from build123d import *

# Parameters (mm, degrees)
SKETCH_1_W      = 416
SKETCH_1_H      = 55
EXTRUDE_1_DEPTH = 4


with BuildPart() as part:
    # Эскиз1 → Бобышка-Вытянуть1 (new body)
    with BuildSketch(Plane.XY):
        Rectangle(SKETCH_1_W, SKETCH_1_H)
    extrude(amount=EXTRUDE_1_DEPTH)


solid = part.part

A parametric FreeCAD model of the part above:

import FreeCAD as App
import Part
import Sketcher

V = App.Vector
Q = App.Units.Quantity


def add_polygon(sketch, points):
    """Adds a closed chain of lines whose ends are joined by coincident constraints."""
    first, n = sketch.GeometryCount, len(points)
    for a, b in zip(points, points[1:] + points[:1]):
        sketch.addGeometry(Part.LineSegment(App.Vector(*a, 0), App.Vector(*b, 0)), False)
    for i in range(n):
        sketch.addConstraint(Sketcher.Constraint("Coincident", first + i, 2, first + (i + 1) % n, 1))

doc = App.newDocument("Part")
body = doc.addObject("PartDesign::Body", "Body")

# Sketch on XY plane
sketch1 = body.newObject("Sketcher::SketchObject", "Sketch")
sketch1.AttachmentSupport = (doc.getObject("XY_Plane"), [""])
sketch1.MapMode = "FlatFace"
add_polygon(sketch1, [(-208, 28), (-208, -28), (208, -28), (208, 28)])  # lines 0-3
sketch1.addConstraint([
    Sketcher.Constraint("Vertical", 0),
    Sketcher.Constraint("Horizontal", 1),
    Sketcher.Constraint("Vertical", 2),
    Sketcher.Constraint("Horizontal", 3),
    Sketcher.Constraint("Symmetric", 0, 2, 2, 2, -1, 1),
    Sketcher.Constraint("DistanceX", 1, 1, 1, 2, Q("416 mm")),
    Sketcher.Constraint("DistanceY", 0, 2, 0, 1, Q("55 mm")),
])
pad1 = body.newObject("PartDesign::Pad", "Pad")
pad1.Profile = sketch1
pad1.Length = 4

doc.recompute()
